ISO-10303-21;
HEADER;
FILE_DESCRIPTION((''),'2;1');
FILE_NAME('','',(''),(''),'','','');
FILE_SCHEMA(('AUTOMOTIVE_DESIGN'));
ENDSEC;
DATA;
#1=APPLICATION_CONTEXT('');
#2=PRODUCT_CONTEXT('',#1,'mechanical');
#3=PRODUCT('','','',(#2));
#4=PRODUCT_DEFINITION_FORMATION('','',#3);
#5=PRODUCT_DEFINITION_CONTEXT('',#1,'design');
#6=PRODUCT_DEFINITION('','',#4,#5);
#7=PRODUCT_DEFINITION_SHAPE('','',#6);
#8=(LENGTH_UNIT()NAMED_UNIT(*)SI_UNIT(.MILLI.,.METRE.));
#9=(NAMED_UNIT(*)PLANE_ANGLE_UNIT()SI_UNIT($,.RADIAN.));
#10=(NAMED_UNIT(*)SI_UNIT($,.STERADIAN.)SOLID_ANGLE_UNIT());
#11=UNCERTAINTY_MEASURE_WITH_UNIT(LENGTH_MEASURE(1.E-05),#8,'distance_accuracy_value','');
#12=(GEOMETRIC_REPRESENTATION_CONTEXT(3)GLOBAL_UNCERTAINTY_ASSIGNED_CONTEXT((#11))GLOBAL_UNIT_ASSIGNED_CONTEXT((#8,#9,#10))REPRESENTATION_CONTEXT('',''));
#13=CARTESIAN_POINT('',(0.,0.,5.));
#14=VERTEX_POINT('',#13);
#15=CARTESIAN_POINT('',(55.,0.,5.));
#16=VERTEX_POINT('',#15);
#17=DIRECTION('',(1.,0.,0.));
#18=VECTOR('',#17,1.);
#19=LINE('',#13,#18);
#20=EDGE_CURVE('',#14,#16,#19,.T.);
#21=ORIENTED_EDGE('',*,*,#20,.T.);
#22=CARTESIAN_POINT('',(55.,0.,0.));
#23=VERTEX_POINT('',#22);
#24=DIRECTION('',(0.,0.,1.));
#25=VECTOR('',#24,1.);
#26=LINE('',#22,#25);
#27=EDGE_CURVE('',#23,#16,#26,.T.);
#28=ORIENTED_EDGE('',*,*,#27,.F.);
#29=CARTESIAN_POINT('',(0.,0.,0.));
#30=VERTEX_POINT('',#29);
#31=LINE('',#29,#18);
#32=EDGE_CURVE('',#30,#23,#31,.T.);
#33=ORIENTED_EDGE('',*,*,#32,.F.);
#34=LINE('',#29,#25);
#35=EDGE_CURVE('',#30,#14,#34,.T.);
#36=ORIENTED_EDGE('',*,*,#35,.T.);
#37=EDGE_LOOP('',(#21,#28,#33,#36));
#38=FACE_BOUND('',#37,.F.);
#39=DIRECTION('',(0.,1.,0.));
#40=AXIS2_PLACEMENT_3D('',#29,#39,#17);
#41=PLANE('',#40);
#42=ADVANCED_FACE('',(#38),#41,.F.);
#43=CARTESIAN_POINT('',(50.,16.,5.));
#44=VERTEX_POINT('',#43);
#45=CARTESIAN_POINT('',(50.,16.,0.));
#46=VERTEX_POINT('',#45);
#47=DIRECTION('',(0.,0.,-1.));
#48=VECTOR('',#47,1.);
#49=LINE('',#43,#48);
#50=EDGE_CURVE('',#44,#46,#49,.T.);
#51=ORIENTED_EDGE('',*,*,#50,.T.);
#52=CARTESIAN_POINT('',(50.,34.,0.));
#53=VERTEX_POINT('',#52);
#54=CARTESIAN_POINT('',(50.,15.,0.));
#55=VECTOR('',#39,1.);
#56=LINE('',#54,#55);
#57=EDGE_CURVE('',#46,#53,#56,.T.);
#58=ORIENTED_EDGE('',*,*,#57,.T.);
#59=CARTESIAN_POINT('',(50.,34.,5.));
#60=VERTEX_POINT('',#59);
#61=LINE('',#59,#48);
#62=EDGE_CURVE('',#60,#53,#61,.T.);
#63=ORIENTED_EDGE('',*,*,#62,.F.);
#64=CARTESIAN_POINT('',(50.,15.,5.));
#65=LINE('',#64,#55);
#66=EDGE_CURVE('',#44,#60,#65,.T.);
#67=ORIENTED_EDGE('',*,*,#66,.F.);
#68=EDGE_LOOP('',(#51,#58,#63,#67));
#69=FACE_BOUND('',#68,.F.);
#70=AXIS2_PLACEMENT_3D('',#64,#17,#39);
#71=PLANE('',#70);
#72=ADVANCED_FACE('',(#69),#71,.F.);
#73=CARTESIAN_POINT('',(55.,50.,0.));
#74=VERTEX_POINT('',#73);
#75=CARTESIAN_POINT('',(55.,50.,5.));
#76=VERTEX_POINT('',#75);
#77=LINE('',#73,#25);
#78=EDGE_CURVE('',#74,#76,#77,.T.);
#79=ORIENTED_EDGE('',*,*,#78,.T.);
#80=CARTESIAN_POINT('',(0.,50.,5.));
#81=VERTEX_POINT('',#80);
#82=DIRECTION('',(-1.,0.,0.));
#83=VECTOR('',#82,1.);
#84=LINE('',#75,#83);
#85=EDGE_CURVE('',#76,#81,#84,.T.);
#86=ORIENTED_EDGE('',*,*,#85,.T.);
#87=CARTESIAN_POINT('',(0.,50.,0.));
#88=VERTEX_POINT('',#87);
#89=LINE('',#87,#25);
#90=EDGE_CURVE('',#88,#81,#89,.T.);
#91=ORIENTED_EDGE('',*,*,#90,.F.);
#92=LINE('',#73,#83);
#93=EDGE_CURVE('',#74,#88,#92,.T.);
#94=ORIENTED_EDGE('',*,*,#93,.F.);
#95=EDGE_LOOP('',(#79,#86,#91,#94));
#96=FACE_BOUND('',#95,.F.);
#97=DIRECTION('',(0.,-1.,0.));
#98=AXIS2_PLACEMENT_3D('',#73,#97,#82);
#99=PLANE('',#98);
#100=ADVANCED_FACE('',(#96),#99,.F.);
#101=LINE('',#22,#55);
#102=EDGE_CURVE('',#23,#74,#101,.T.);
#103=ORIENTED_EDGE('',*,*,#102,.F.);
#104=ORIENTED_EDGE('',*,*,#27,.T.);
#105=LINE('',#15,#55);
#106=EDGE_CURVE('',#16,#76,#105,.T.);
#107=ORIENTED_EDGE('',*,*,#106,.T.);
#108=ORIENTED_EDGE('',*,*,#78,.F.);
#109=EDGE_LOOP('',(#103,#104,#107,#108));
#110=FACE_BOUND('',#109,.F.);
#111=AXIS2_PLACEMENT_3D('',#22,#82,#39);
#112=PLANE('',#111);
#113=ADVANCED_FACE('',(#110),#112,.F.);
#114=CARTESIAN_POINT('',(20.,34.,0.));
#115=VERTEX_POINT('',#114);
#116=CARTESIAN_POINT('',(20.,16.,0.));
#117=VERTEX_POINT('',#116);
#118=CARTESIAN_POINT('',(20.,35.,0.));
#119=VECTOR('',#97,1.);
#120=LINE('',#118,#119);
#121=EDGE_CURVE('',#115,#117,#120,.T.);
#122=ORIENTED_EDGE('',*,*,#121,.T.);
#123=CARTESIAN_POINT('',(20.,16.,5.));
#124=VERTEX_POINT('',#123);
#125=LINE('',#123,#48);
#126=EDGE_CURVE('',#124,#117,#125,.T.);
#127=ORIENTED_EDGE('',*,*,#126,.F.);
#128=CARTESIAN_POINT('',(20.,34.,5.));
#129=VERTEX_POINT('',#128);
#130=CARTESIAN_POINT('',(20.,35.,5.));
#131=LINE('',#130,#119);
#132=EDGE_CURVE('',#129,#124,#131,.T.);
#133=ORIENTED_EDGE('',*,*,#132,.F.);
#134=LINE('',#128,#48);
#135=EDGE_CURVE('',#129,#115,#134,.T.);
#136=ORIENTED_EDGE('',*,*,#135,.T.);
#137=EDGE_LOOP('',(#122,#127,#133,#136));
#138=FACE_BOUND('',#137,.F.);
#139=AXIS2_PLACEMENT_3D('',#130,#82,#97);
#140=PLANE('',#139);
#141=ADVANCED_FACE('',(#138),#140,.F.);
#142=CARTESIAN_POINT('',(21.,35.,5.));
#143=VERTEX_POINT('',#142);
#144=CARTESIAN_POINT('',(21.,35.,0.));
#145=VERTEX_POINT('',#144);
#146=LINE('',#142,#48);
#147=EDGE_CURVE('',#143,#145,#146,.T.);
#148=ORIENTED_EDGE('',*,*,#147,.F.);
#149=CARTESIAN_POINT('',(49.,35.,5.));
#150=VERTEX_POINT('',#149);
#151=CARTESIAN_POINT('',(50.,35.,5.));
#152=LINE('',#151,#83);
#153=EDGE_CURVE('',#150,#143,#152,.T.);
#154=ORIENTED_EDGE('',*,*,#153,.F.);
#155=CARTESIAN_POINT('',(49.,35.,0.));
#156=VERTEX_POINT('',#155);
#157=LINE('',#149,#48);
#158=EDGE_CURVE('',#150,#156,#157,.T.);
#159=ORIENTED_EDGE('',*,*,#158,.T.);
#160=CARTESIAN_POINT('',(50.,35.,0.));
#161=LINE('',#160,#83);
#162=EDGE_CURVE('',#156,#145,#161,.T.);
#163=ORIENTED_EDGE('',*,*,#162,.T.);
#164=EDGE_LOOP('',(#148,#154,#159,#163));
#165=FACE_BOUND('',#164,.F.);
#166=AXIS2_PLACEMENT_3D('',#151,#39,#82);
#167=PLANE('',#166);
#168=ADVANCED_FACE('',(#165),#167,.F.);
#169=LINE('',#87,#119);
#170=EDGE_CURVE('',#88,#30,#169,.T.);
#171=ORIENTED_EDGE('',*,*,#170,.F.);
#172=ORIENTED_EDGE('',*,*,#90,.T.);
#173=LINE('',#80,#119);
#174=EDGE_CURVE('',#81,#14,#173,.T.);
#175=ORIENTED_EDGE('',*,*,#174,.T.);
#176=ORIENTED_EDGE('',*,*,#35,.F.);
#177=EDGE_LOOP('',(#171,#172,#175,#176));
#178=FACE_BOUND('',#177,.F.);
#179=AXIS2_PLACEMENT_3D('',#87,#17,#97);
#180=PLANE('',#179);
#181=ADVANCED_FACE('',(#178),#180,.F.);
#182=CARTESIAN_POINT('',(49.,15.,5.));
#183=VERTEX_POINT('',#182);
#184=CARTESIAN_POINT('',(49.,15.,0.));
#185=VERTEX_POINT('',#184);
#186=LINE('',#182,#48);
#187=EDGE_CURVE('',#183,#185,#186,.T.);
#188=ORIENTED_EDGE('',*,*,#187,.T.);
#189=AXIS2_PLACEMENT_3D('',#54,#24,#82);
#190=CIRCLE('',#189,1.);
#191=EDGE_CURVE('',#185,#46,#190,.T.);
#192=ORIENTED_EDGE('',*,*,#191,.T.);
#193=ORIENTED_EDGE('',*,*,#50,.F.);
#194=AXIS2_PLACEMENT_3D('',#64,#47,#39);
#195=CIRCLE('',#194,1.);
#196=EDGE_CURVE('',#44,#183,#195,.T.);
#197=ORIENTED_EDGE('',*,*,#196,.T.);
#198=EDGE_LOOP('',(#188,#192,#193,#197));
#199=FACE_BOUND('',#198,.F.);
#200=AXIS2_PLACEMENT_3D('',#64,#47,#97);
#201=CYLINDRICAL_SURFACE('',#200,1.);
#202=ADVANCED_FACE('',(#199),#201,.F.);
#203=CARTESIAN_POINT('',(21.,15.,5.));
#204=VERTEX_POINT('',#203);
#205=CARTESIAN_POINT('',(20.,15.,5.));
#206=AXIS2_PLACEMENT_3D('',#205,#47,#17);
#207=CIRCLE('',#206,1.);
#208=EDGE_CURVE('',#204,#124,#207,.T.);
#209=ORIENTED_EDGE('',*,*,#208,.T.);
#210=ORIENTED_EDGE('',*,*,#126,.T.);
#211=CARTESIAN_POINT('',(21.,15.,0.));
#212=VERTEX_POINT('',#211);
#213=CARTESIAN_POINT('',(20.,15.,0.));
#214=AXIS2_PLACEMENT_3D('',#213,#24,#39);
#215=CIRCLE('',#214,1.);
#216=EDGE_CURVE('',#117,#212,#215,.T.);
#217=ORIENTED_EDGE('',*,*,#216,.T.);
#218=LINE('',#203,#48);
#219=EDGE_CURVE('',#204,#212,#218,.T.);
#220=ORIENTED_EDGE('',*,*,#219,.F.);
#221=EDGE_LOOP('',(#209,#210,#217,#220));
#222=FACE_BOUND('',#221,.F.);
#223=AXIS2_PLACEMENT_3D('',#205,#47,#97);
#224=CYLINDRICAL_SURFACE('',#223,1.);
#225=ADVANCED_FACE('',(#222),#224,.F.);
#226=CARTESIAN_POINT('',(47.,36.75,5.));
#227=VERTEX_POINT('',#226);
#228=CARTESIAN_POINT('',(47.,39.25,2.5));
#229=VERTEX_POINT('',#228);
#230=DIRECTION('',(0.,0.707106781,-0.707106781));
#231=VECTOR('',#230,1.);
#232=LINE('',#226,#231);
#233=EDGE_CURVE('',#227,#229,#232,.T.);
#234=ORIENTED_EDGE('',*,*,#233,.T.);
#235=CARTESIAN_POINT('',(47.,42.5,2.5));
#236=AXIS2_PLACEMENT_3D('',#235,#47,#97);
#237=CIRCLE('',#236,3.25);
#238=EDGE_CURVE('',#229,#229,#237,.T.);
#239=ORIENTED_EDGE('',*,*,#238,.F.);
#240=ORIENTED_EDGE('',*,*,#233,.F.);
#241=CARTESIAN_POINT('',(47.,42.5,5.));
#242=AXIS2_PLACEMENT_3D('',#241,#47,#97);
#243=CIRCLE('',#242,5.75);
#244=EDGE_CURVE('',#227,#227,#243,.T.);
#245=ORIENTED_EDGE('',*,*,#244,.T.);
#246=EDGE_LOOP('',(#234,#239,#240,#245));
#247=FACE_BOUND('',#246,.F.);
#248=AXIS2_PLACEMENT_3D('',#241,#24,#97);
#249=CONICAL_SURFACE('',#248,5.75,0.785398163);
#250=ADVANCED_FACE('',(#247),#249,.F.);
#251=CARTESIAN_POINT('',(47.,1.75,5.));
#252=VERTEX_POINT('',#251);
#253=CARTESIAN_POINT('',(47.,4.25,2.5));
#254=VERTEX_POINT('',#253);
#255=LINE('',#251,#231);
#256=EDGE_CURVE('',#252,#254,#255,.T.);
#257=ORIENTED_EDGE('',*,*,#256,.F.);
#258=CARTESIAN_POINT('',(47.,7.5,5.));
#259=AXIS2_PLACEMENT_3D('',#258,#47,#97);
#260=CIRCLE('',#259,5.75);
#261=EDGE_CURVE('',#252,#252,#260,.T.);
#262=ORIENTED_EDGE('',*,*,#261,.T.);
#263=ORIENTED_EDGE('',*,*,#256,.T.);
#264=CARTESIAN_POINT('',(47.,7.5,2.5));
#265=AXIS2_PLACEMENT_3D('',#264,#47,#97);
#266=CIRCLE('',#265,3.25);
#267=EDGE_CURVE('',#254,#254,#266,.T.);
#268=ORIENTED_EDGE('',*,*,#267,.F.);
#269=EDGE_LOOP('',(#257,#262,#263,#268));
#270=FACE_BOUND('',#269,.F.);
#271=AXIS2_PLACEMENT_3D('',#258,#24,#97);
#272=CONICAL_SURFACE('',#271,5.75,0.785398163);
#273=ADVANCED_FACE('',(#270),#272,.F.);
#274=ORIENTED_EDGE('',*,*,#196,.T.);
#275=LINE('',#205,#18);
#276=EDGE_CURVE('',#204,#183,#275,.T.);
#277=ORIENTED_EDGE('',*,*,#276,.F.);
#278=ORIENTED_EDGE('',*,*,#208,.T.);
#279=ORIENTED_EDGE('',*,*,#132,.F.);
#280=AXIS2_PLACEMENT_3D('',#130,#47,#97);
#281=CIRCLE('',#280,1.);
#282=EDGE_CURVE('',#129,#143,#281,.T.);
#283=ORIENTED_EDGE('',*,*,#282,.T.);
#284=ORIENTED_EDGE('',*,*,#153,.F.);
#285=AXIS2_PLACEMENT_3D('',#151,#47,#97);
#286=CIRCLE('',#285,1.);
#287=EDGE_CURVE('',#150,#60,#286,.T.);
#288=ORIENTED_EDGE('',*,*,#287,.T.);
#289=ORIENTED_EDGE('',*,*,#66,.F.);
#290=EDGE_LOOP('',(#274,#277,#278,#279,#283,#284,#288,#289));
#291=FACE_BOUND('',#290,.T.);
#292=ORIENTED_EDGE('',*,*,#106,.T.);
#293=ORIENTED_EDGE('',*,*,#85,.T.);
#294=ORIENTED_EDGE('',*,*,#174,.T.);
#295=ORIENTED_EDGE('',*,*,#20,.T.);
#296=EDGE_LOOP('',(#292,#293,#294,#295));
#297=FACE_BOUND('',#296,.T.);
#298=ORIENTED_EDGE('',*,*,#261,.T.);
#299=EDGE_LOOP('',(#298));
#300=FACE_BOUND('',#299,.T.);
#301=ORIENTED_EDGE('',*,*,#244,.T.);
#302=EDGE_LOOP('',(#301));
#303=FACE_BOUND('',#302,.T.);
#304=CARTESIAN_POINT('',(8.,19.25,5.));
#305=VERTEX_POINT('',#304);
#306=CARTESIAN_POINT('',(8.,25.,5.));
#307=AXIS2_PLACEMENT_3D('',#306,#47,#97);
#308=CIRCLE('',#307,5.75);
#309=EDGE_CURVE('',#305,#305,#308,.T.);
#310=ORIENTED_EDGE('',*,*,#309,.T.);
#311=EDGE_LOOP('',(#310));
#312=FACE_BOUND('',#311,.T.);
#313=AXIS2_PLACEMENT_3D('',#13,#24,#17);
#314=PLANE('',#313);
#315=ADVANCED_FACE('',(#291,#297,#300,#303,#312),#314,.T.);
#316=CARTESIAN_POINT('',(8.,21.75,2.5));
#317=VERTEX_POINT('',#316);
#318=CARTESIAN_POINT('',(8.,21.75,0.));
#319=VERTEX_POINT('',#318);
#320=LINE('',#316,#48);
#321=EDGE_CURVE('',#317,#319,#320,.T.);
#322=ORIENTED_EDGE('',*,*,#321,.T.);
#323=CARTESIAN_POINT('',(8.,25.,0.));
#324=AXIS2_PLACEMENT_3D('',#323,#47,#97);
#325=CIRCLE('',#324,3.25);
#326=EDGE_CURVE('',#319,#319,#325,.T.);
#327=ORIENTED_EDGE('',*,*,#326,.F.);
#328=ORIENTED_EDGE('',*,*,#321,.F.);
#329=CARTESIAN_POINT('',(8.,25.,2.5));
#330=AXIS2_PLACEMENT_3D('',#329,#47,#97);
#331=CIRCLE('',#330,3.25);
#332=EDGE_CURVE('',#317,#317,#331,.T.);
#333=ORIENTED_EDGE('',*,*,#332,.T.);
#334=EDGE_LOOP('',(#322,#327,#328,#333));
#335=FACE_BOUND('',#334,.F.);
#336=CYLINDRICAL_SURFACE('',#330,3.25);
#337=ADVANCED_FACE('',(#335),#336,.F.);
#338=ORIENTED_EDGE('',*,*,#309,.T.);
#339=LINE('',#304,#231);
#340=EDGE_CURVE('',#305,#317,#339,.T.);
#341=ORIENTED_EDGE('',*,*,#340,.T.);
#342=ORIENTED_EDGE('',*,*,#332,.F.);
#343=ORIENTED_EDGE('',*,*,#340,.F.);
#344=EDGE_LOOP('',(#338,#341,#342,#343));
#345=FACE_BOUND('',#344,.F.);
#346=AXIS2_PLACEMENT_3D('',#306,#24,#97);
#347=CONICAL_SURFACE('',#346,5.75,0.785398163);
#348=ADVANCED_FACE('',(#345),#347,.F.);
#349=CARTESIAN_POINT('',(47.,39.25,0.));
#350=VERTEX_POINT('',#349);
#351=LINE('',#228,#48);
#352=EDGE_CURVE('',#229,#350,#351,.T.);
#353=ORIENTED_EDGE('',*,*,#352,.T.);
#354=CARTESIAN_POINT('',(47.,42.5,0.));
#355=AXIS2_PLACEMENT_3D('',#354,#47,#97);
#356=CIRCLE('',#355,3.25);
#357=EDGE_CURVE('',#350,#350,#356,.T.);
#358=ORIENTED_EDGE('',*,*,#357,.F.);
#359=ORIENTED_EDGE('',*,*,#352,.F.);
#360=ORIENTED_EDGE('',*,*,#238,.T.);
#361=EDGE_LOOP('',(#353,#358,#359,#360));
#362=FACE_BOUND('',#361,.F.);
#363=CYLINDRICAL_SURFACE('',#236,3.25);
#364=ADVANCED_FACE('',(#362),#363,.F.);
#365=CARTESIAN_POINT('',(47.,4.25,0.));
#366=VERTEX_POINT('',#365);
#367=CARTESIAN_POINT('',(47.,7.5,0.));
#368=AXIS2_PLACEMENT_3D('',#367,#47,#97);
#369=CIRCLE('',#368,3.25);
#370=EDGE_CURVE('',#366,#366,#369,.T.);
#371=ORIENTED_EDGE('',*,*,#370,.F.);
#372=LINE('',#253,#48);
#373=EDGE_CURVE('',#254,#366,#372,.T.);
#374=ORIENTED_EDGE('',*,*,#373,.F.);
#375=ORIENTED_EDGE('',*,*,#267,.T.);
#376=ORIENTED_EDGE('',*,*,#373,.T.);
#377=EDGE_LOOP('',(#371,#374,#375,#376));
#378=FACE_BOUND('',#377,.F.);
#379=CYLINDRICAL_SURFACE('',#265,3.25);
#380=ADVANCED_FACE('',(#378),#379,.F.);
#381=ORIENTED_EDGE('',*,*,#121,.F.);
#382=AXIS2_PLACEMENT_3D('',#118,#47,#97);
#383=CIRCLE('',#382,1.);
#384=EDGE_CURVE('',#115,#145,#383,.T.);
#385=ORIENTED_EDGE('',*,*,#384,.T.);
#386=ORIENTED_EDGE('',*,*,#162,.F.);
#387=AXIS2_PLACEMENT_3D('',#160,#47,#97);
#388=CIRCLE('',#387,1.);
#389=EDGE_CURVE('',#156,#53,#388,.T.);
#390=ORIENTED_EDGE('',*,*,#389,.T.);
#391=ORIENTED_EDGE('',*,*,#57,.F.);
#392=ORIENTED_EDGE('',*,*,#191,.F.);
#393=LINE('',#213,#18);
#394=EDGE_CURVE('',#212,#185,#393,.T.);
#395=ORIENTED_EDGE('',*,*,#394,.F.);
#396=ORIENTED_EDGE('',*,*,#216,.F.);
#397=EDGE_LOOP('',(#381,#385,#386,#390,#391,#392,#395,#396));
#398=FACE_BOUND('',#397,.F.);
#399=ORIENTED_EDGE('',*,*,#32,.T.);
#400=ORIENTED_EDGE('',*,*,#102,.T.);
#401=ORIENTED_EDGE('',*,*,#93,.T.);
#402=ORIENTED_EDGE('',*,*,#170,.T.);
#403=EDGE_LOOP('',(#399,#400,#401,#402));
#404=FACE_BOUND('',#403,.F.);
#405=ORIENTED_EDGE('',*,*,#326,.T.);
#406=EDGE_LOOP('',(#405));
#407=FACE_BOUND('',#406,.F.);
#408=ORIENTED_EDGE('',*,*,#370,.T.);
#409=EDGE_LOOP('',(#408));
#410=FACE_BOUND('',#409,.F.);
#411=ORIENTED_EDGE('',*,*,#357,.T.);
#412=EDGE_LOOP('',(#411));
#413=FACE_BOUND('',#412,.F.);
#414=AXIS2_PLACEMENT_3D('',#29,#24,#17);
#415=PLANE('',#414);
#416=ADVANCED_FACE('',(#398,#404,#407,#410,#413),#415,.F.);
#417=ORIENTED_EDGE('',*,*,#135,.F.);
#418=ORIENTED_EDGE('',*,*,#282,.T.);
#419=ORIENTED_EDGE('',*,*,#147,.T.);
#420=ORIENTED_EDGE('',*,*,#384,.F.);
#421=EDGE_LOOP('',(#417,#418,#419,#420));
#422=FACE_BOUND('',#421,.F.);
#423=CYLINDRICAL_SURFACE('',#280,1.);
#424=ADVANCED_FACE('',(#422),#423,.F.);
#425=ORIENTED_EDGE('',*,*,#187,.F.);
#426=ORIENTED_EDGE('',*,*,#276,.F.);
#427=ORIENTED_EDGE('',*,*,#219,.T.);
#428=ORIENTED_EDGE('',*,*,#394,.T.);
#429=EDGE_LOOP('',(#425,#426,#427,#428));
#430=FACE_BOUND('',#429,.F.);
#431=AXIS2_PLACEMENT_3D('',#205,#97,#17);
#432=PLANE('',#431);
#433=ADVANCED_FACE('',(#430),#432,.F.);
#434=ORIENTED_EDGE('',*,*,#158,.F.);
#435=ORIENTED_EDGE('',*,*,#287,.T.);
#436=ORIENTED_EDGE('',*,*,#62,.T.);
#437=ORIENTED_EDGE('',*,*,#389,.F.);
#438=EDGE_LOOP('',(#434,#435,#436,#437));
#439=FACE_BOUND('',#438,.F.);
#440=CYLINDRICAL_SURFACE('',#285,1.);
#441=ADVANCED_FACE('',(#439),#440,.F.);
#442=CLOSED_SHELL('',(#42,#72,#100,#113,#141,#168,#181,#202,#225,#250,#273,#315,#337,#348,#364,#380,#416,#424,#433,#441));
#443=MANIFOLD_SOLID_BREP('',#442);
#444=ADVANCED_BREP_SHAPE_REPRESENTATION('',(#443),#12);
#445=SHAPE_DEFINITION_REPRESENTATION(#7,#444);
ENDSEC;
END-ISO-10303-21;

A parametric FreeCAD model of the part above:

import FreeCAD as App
import Part
import Sketcher
from FreeCAD import Vector


def add_polygon(sketch, points):
    """Adds a closed chain of lines whose ends are joined by coincident constraints."""
    first, n = sketch.GeometryCount, len(points)
    for a, b in zip(points, points[1:] + points[:1]):
        sketch.addGeometry(Part.LineSegment(App.Vector(*a, 0), App.Vector(*b, 0)), False)
    for i in range(n):
        sketch.addConstraint(Sketcher.Constraint("Coincident", first + i, 2, first + (i + 1) % n, 1))

doc = App.newDocument("Part")
params = doc.addObject("Spreadsheet::Sheet", "Params")
for row, (alias, value) in enumerate([
    ("sketch1_width", "55 mm"),
    ("sketch1_height", "50 mm"),
    ("pad1_length", "5 mm"),
    ("sketch2_width", "30 mm"),
    ("sketch2_height", "20 mm"),
    ("pocket1_length", "5 mm"),
    ("sketch3_diameter", "2 mm"),
    ("hole_diameter", "2 mm"),
    ("hole_depth", "5 mm"),
    ("sketch4_diameter", "6.5 mm"),
    ("hole2_diameter", "6.5 mm"),
    ("hole2_depth", "5 mm"),
    ("hole2_csink_diameter", "11.5 mm"),
], start=1):
    params.set(f"A{row}", alias)
    params.set(f"B{row}", "=" + value)
    params.setAlias(f"B{row}", alias)

body = doc.addObject("PartDesign::Body", "Body")

sketch1 = body.newObject("Sketcher::SketchObject", "Sketch")
sketch1.AttachmentSupport = (doc.getObject("XY_Plane"), [""])
sketch1.MapMode = "FlatFace"
add_polygon(sketch1, [(0, 50), (0, 0), (55, 0), (55, 50)])
sketch1.addConstraint(Sketcher.Constraint("Vertical", 0))
sketch1.addConstraint(Sketcher.Constraint("Horizontal", 1))
sketch1.addConstraint(Sketcher.Constraint("Vertical", 2))
sketch1.addConstraint(Sketcher.Constraint("Horizontal", 3))
sketch1.addConstraint(Sketcher.Constraint("Coincident", 0, 2, -1, 1))
sketch1.addConstraint(Sketcher.Constraint("DistanceX", 1, 1, 1, 2, 55.0))
sketch1.addConstraint(Sketcher.Constraint("DistanceY", 0, 2, 0, 1, 50.0))
sketch1.setExpression("Constraints[9]", "Params.sketch1_width")
sketch1.setExpression("Constraints[10]", "Params.sketch1_height")
pad1 = body.newObject("PartDesign::Pad", "Pad")
pad1.Profile = sketch1
pad1.setExpression("Length", "Params.pad1_length")

sketch2 = body.newObject("Sketcher::SketchObject", "Sketch001")
sketch2.AttachmentSupport = (doc.getObject("XY_Plane"), [""])
sketch2.MapMode = "FlatFace"
sketch2.AttachmentOffset = App.Placement(Vector(0, 0, 5), App.Rotation())
add_polygon(sketch2, [(20, 35), (20, 15), (50, 15), (50, 35)])
sketch2.addConstraint(Sketcher.Constraint("Vertical", 0))
sketch2.addConstraint(Sketcher.Constraint("Horizontal", 1))
sketch2.addConstraint(Sketcher.Constraint("Vertical", 2))
sketch2.addConstraint(Sketcher.Constraint("Horizontal", 3))
sketch2.addConstraint(Sketcher.Constraint("DistanceX", 1, 1, 1, 2, 30.0))
sketch2.addConstraint(Sketcher.Constraint("DistanceY", 0, 2, 0, 1, 20.0))
sketch2.addConstraint(Sketcher.Constraint("DistanceX", -1, 1, 0, 2, 20.0))
sketch2.addConstraint(Sketcher.Constraint("DistanceY", -1, 1, 0, 2, 15.0))
sketch2.setExpression("Constraints[8]", "Params.sketch2_width")
sketch2.setExpression("Constraints[9]", "Params.sketch2_height")
pocket1 = body.newObject("PartDesign::Pocket", "Pocket")
pocket1.Profile = sketch2
pocket1.setExpression("Length", "Params.pocket1_length")

sketch3 = body.newObject("Sketcher::SketchObject", "Sketch002")
sketch3.AttachmentSupport = (doc.getObject("XY_Plane"), [""])
sketch3.MapMode = "FlatFace"
sketch3.AttachmentOffset = App.Placement(Vector(0, 0, 5), App.Rotation())
sketch3.addGeometry(Part.Circle(Vector(20, 35, 0), Vector(0, 0, 1), 1), False)
sketch3.addGeometry(Part.Circle(Vector(20, 15, 0), Vector(0, 0, 1), 1), False)
sketch3.addGeometry(Part.Circle(Vector(50, 15, 0), Vector(0, 0, 1), 1), False)
sketch3.addGeometry(Part.Circle(Vector(50, 35, 0), Vector(0, 0, 1), 1), False)
sketch3.addConstraint(Sketcher.Constraint("Equal", 0, 1))
sketch3.addConstraint(Sketcher.Constraint("Equal", 1, 2))
sketch3.addConstraint(Sketcher.Constraint("Equal", 2, 3))
sketch3.addConstraint(Sketcher.Constraint("Horizontal", 1, 3, 2, 3))
sketch3.addConstraint(Sketcher.Constraint("Horizontal", 0, 3, 3, 3))
sketch3.addConstraint(Sketcher.Constraint("Vertical", 0, 3, 1, 3))
sketch3.addConstraint(Sketcher.Constraint("Vertical", 2, 3, 3, 3))
sketch3.addConstraint(Sketcher.Constraint("Diameter", 0, 2.0))
sketch3.addConstraint(Sketcher.Constraint("DistanceX", -1, 1, 0, 3, 20.0))
sketch3.addConstraint(Sketcher.Constraint("DistanceY", -1, 1, 0, 3, 35.0))
sketch3.addConstraint(Sketcher.Constraint("DistanceY", -1, 1, 1, 3, 15.0))
sketch3.addConstraint(Sketcher.Constraint("DistanceX", -1, 1, 2, 3, 50.0))
sketch3.setExpression("Constraints[7]", "Params.sketch3_diameter")
doc.recompute()
hole = body.newObject("PartDesign::Hole", "Hole")
hole.Profile = sketch3
hole.ThreadType = "None"
hole.setExpression("Diameter", "Params.hole_diameter")
hole.DepthType = "Dimension"
hole.setExpression("Depth", "Params.hole_depth")
hole.DrillPoint = "Angled"
hole.DrillPointAngle = 118

sketch4 = body.newObject("Sketcher::SketchObject", "Sketch003")
sketch4.AttachmentSupport = (doc.getObject("XY_Plane"), [""])
sketch4.MapMode = "FlatFace"
sketch4.AttachmentOffset = App.Placement(Vector(0, 0, 5), App.Rotation())
sketch4.addGeometry(Part.Circle(Vector(8, 25, 0), Vector(0, 0, 1), 3.2), False)
sketch4.addGeometry(Part.Circle(Vector(47, 42.5, 0), Vector(0, 0, 1), 3.2), False)
sketch4.addGeometry(Part.Circle(Vector(47, 7.5, 0), Vector(0, 0, 1), 3.2), False)
sketch4.addConstraint(Sketcher.Constraint("Equal", 0, 1))
sketch4.addConstraint(Sketcher.Constraint("Equal", 1, 2))
sketch4.addConstraint(Sketcher.Constraint("Vertical", 1, 3, 2, 3))
sketch4.addConstraint(Sketcher.Constraint("Diameter", 0, 6.5))
sketch4.addConstraint(Sketcher.Constraint("DistanceX", -1, 1, 0, 3, 8.0))
sketch4.addConstraint(Sketcher.Constraint("DistanceY", -1, 1, 0, 3, 25.0))
sketch4.addConstraint(Sketcher.Constraint("DistanceX", -1, 1, 1, 3, 47.0))
sketch4.addConstraint(Sketcher.Constraint("DistanceY", 2, 3, 1, 3, 35.0))
sketch4.addConstraint(Sketcher.Constraint("DistanceY", -1, 1, 1, 3, 42.5))
sketch4.setExpression("Constraints[3]", "Params.sketch4_diameter")
doc.recompute()
hole2 = body.newObject("PartDesign::Hole", "Hole001")
hole2.Profile = sketch4
hole2.ThreadType = "None"
hole2.setExpression("Diameter", "Params.hole2_diameter")
hole2.DepthType = "Dimension"
hole2.setExpression("Depth", "Params.hole2_depth")
hole2.DrillPoint = "Angled"
hole2.DrillPointAngle = 118
hole2.HoleCutType = "Countersink"
hole2.setExpression("HoleCutDiameter", "Params.hole2_csink_diameter")
hole2.HoleCutCountersinkAngle = 90

doc.recompute()
